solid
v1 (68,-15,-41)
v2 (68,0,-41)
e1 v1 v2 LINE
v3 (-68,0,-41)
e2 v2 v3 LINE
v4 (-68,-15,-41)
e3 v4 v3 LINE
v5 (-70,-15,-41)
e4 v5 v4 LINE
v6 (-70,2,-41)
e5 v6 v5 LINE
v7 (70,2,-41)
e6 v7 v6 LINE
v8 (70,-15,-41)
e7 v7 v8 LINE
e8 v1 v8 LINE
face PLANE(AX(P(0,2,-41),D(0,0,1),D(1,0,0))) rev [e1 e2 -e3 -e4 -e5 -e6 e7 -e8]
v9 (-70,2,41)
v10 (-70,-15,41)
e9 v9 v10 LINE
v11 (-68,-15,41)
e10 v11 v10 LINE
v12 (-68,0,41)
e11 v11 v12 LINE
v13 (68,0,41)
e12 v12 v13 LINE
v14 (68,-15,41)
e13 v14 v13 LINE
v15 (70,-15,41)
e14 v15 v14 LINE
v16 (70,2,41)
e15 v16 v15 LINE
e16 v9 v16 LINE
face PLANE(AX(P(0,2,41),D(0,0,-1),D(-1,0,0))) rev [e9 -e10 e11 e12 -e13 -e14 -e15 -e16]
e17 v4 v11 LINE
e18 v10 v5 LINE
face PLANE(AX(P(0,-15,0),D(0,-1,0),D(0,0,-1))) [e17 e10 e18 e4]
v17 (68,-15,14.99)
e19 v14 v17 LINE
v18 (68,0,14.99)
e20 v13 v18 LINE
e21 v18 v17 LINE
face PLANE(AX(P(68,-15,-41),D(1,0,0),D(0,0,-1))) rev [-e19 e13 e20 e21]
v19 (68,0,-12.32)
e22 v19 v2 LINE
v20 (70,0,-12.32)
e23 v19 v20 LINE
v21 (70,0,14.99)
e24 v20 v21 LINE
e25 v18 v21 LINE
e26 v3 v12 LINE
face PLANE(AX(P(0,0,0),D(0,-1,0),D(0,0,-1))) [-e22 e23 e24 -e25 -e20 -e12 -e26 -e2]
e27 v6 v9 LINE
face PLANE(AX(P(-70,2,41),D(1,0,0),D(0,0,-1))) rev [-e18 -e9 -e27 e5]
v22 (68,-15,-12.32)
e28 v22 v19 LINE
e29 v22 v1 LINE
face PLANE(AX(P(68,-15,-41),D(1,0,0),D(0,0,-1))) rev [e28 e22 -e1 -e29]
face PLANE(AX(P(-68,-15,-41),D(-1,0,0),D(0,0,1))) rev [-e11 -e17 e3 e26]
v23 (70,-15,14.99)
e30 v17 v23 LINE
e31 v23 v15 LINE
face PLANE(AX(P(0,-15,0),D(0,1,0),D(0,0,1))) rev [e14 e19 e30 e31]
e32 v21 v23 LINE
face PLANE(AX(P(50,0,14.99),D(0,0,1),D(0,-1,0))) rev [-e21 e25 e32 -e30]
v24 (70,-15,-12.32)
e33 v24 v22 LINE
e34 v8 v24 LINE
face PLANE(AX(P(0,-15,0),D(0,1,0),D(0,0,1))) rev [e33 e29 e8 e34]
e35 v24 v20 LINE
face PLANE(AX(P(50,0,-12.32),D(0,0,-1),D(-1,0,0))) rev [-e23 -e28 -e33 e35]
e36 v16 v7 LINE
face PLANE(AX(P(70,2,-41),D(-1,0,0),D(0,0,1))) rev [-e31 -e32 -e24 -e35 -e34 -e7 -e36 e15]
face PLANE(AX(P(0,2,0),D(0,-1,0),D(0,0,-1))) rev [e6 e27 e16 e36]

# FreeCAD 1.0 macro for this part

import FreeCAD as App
import Part
import Sketcher
Q = App.Units.Quantity

doc = App.newDocument("Part")
body = doc.addObject("PartDesign::Body", "Body")

# Sketch on XZ plane
sketch1 = doc.addObject("Sketcher::SketchObject", "Sketch")
body.addObject(sketch1)
sketch1.AttachmentSupport = (doc.XZ_Plane, [""])
sketch1.MapMode = "FlatFace"
sketch1.addGeometry([
    Part.LineSegment(App.Vector(70, 41, 0), App.Vector(70, -41, 0)),
    Part.LineSegment(App.Vector(70, -41, 0), App.Vector(-70, -41, 0)),
    Part.LineSegment(App.Vector(-70, -41, 0), App.Vector(-70, 41, 0)),
    Part.LineSegment(App.Vector(-70, 41, 0), App.Vector(70, 41, 0)),
], False)
sketch1.addConstraint([
    Sketcher.Constraint("Coincident", 0, 2, 1, 1),
    Sketcher.Constraint("Coincident", 1, 2, 2, 1),
    Sketcher.Constraint("Coincident", 2, 2, 3, 1),
    Sketcher.Constraint("Coincident", 3, 2, 0, 1),
    Sketcher.Constraint("Vertical", 0),
    Sketcher.Constraint("Horizontal", 1),
    Sketcher.Constraint("Vertical", 2),
    Sketcher.Constraint("Horizontal", 3),
    Sketcher.Constraint("Symmetric", 0, 2, 2, 2, -1, 1),
    Sketcher.Constraint("DistanceX", 1, 2, 1, 1, Q("140 mm")),
    Sketcher.Constraint("DistanceY", 0, 2, 0, 1, Q("82 mm")),
])
pad1 = doc.addObject("PartDesign::Pad", "Pad")
body.addObject(pad1)
pad1.Profile = sketch1
pad1.Length = 2
pad1.Reversed = True

# Sketch on XZ plane
sketch2 = doc.addObject("Sketcher::SketchObject", "Sketch001")
body.addObject(sketch2)
sketch2.AttachmentSupport = (doc.XZ_Plane, [""])
sketch2.MapMode = "FlatFace"
sketch2.addGeometry([
    Part.LineSegment(App.Vector(-70, 41, 0), App.Vector(-70, -41, 0)),  # 0
    Part.LineSegment(App.Vector(-70, -41, 0), App.Vector(-68, -41, 0)),  # 1
    Part.LineSegment(App.Vector(-68, -41, 0), App.Vector(-68, 41, 0)),  # 2
    Part.LineSegment(App.Vector(-68, 41, 0), App.Vector(-70, 41, 0)),  # 3
    Part.LineSegment(App.Vector(68, 41, 0), App.Vector(68, -41, 0)),  # 4
    Part.LineSegment(App.Vector(68, -41, 0), App.Vector(70, -41, 0)),  # 5
    Part.LineSegment(App.Vector(70, -41, 0), App.Vector(70, 41, 0)),  # 6
    Part.LineSegment(App.Vector(70, 41, 0), App.Vector(68, 41, 0)),  # 7
], False)
sketch2.addConstraint([
    Sketcher.Constraint("Coincident", 0, 2, 1, 1),
    Sketcher.Constraint("Coincident", 1, 2, 2, 1),
    Sketcher.Constraint("Coincident", 2, 2, 3, 1),
    Sketcher.Constraint("Coincident", 3, 2, 0, 1),
    Sketcher.Constraint("Coincident", 4, 2, 5, 1),
    Sketcher.Constraint("Coincident", 5, 2, 6, 1),
    Sketcher.Constraint("Coincident", 6, 2, 7, 1),
    Sketcher.Constraint("Coincident", 7, 2, 4, 1),
    Sketcher.Constraint("Vertical", 0),
    Sketcher.Constraint("Horizontal", 1),
    Sketcher.Constraint("Vertical", 2),
    Sketcher.Constraint("Horizontal", 3),
    Sketcher.Constraint("Vertical", 4),
    Sketcher.Constraint("Horizontal", 5),
    Sketcher.Constraint("Vertical", 6),
    Sketcher.Constraint("Horizontal", 7),
    Sketcher.Constraint("Symmetric", 2, 2, 4, 2, -1, 1),
    Sketcher.Constraint("Symmetric", 0, 2, 6, 2, -1, 1),
    Sketcher.Constraint("Horizontal", 1, 2, 4, 2),
    Sketcher.Constraint("DistanceX", 1, 1, 1, 2, Q("2 mm")),
    Sketcher.Constraint("DistanceY", 0, 2, 0, 1, Q("82 mm")),
    Sketcher.Constraint("DistanceX", 0, 2, -1, 1, Q("70 mm")),
])
pad2 = doc.addObject("PartDesign::Pad", "Pad001")
body.addObject(pad2)
pad2.Profile = sketch2
pad2.Length = 15

# Sketch on YZ plane
sketch3 = doc.addObject("Sketcher::SketchObject", "Sketch002")
body.addObject(sketch3)
sketch3.AttachmentSupport = (doc.YZ_Plane, [""])
sketch3.MapMode = "FlatFace"
sketch3.AttachmentOffset = App.Placement(App.Vector(0, 0, 70), App.Rotation())
sketch3.addGeometry([
    Part.LineSegment(App.Vector(0, 15, 0), App.Vector(-15, 15, 0)),
    Part.LineSegment(App.Vector(-15, 15, 0), App.Vector(-15, -12, 0)),
    Part.LineSegment(App.Vector(-15, -12, 0), App.Vector(0, -12, 0)),
    Part.LineSegment(App.Vector(0, -12, 0), App.Vector(0, 15, 0)),
], False)
sketch3.addConstraint([
    Sketcher.Constraint("Coincident", 0, 2, 1, 1),
    Sketcher.Constraint("Coincident", 1, 2, 2, 1),
    Sketcher.Constraint("Coincident", 2, 2, 3, 1),
    Sketcher.Constraint("Coincident", 3, 2, 0, 1),
    Sketcher.Constraint("Horizontal", 0),
    Sketcher.Constraint("Vertical", 1),
    Sketcher.Constraint("Horizontal", 2),
    Sketcher.Constraint("Vertical", 3),
    Sketcher.Constraint("PointOnObject", 2, 2, -2),
    Sketcher.Constraint("DistanceX", 0, 2, 0, 1, Q("15 mm")),
    Sketcher.Constraint("DistanceY", 1, 2, 1, 1, Q("27.31 mm")),
    Sketcher.Constraint("DistanceY", -1, 1, 0, 2, Q("14.99 mm")),
])
pocket1 = doc.addObject("PartDesign::Pocket", "Pocket")
body.addObject(pocket1)
pocket1.Profile = sketch3
pocket1.Length = 20

doc.recompute()
